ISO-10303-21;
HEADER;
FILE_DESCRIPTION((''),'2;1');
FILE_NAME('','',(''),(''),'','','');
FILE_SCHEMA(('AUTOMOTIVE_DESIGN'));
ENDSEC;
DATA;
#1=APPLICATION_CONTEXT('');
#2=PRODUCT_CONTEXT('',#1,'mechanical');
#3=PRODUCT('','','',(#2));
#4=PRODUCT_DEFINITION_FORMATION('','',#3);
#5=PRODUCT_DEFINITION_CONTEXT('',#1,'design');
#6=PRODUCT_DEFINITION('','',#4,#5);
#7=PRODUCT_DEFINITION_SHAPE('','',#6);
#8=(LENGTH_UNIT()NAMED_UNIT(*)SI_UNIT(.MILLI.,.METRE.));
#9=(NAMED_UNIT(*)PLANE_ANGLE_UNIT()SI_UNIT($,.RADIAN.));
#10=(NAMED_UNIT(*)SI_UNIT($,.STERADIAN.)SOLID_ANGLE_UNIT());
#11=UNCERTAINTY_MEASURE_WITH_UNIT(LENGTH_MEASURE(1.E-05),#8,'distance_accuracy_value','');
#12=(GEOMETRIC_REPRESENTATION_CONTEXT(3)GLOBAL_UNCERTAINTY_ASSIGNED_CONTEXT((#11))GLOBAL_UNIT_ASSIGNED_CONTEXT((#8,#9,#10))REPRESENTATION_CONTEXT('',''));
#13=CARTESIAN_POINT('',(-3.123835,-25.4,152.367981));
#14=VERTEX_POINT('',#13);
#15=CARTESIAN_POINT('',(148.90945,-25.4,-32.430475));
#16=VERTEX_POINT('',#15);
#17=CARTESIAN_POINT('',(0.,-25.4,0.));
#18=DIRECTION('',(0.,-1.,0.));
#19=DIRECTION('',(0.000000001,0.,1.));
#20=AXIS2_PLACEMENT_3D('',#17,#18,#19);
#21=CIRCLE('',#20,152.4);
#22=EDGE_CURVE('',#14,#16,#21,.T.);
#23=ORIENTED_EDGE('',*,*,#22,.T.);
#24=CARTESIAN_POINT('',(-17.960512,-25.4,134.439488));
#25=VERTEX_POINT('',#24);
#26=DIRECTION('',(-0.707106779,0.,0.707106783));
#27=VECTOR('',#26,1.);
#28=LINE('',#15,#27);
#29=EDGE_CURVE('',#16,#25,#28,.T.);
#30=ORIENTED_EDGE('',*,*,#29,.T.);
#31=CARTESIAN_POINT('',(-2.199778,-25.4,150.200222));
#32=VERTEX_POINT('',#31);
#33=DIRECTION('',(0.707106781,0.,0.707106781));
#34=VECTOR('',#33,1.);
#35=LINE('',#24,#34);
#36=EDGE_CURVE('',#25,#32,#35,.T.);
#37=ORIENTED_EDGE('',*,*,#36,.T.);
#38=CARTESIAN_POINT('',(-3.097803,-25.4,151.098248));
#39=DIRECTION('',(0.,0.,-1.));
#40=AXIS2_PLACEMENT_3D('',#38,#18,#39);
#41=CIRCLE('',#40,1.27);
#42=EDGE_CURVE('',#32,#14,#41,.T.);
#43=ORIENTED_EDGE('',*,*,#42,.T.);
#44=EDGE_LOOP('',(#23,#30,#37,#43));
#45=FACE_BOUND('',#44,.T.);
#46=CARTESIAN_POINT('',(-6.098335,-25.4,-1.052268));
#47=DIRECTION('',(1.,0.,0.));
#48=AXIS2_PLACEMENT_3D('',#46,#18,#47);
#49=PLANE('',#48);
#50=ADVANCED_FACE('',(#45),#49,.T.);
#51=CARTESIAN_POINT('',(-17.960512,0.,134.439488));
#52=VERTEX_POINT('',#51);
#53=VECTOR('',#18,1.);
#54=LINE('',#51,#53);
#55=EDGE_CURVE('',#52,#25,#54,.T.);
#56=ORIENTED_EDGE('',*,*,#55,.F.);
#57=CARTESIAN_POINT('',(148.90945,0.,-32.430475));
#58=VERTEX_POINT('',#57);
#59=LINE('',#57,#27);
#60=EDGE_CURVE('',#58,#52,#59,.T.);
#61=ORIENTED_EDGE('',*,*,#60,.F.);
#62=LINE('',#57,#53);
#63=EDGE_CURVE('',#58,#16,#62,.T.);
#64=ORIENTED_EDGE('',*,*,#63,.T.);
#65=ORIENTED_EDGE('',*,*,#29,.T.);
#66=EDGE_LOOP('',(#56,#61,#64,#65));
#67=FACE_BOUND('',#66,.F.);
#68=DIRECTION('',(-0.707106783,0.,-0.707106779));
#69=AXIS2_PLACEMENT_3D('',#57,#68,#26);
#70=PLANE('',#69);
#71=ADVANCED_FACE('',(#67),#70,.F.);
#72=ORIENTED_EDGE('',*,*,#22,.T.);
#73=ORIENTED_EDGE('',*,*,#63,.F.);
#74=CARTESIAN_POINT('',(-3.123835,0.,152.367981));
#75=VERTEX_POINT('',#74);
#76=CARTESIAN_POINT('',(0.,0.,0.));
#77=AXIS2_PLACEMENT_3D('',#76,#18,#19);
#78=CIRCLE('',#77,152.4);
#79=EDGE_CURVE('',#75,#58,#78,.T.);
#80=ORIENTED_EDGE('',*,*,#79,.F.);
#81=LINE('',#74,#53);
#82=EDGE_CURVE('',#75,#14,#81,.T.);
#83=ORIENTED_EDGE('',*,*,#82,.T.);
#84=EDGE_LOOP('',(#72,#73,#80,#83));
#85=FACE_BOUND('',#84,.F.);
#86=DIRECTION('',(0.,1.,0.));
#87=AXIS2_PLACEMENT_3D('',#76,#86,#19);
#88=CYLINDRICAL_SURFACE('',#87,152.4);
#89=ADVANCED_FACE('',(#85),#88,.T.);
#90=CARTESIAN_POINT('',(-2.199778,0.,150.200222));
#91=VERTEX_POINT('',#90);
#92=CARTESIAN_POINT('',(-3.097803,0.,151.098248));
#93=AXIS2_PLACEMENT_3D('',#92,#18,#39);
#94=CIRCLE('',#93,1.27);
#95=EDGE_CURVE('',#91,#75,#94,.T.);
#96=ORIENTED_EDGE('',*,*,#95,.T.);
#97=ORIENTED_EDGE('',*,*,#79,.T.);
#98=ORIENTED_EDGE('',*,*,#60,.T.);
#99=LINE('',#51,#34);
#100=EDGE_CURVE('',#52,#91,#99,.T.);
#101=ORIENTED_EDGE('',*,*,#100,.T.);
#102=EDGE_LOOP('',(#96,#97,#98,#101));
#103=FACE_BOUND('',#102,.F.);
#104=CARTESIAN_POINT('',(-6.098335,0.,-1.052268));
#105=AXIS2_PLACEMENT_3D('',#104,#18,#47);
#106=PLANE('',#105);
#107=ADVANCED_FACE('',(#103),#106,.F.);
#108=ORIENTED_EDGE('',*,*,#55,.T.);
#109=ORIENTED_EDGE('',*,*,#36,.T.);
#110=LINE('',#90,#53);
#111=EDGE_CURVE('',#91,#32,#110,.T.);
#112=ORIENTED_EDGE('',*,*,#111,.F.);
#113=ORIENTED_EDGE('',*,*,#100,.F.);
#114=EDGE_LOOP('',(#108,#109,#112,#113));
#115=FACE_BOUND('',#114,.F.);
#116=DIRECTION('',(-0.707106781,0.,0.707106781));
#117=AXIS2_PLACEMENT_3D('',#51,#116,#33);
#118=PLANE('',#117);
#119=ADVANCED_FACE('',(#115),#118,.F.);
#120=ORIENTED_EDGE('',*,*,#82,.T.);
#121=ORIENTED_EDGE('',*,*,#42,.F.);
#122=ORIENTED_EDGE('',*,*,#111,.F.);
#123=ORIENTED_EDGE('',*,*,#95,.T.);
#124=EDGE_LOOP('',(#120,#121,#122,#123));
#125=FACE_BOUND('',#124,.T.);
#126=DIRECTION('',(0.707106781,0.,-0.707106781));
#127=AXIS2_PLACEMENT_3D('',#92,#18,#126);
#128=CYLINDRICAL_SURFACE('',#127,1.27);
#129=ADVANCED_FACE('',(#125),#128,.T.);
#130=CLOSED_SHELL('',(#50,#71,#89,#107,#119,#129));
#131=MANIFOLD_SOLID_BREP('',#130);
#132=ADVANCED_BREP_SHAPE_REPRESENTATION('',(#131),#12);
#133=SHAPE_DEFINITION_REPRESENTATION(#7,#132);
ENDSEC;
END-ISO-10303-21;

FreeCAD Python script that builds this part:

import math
import FreeCAD as App
import Part
import Sketcher
Q = App.Units.Quantity


def edges_at(feature, points):
    """Names of the edges that pass closest to the given points."""
    edges = feature.Shape.Edges
    near = lambda p: min(range(len(edges)), key=lambda i: edges[i].distToShape(Part.Vertex(*p))[0])
    return sorted({f"Edge{near(p) + 1}" for p in points})

doc = App.newDocument("Part")
params = doc.addObject("Spreadsheet::Sheet", "Params")
for row, (alias, value) in enumerate([
    ("sketch1_radius", "6 in"),
    ("sketch1_length", "1 in"),
    ("pad1_length", "1 in"),
    ("fillet_radius", "0.05 in"),
], start=1):
    params.set(f"A{row}", alias)
    params.set(f"B{row}", "=" + value)
    params.setAlias(f"B{row}", alias)

body = doc.addObject("PartDesign::Body", "Body")

# Sketch on XZ plane
sketch1 = body.newObject("Sketcher::SketchObject", "Sketch")
sketch1.AttachmentSupport = (doc.getObject("XZ_Plane"), [""])
sketch1.MapMode = "FlatFace"
sketch1.addGeometry(Part.LineSegment(App.Vector(-18, 134, 0), App.Vector(0, 152, 0)), False)
sketch1.addGeometry(Part.ArcOfCircle(Part.Circle(App.Vector(0, 0, 0), App.Vector(0, 0, 1), 152), math.radians(90), math.radians(348)), False)
sketch1.addGeometry(Part.LineSegment(App.Vector(149, -32, 0), App.Vector(-18, 134, 0)), False)
sketch1.addConstraint(Sketcher.Constraint("Coincident", 0, 2, 1, 1))
sketch1.addConstraint(Sketcher.Constraint("Coincident", 1, 2, 2, 1))
sketch1.addConstraint(Sketcher.Constraint("Coincident", 2, 2, 0, 1))
sketch1.addConstraint(Sketcher.Constraint("Coincident", 1, 3, -1, 1))
sketch1.addConstraint(Sketcher.Constraint("PointOnObject", 0, 2, -2))
sketch1.addConstraint(Sketcher.Constraint("Perpendicular", 0, 2))
sketch1.addConstraint(Sketcher.Constraint("Radius", 1, Q("6 in")))
sketch1.addConstraint(Sketcher.Constraint("Distance", 0, Q("1 in")))
sketch1.addConstraint(Sketcher.Constraint("Angle", 0, Q("45 deg")))
sketch1.setExpression("Constraints[6]", "Params.sketch1_radius")
sketch1.setExpression("Constraints[7]", "Params.sketch1_length")
pad1 = body.newObject("PartDesign::Pad", "Pad")
pad1.Profile = sketch1
pad1.setExpression("Length", "Params.pad1_length")
doc.recompute()

fillet = body.newObject("PartDesign::Fillet", "Fillet")
fillet.Base = (pad1, edges_at(pad1, [(0, -12.7, 152.4)]))
fillet.setExpression("Radius", "Params.fillet_radius")

doc.recompute()
